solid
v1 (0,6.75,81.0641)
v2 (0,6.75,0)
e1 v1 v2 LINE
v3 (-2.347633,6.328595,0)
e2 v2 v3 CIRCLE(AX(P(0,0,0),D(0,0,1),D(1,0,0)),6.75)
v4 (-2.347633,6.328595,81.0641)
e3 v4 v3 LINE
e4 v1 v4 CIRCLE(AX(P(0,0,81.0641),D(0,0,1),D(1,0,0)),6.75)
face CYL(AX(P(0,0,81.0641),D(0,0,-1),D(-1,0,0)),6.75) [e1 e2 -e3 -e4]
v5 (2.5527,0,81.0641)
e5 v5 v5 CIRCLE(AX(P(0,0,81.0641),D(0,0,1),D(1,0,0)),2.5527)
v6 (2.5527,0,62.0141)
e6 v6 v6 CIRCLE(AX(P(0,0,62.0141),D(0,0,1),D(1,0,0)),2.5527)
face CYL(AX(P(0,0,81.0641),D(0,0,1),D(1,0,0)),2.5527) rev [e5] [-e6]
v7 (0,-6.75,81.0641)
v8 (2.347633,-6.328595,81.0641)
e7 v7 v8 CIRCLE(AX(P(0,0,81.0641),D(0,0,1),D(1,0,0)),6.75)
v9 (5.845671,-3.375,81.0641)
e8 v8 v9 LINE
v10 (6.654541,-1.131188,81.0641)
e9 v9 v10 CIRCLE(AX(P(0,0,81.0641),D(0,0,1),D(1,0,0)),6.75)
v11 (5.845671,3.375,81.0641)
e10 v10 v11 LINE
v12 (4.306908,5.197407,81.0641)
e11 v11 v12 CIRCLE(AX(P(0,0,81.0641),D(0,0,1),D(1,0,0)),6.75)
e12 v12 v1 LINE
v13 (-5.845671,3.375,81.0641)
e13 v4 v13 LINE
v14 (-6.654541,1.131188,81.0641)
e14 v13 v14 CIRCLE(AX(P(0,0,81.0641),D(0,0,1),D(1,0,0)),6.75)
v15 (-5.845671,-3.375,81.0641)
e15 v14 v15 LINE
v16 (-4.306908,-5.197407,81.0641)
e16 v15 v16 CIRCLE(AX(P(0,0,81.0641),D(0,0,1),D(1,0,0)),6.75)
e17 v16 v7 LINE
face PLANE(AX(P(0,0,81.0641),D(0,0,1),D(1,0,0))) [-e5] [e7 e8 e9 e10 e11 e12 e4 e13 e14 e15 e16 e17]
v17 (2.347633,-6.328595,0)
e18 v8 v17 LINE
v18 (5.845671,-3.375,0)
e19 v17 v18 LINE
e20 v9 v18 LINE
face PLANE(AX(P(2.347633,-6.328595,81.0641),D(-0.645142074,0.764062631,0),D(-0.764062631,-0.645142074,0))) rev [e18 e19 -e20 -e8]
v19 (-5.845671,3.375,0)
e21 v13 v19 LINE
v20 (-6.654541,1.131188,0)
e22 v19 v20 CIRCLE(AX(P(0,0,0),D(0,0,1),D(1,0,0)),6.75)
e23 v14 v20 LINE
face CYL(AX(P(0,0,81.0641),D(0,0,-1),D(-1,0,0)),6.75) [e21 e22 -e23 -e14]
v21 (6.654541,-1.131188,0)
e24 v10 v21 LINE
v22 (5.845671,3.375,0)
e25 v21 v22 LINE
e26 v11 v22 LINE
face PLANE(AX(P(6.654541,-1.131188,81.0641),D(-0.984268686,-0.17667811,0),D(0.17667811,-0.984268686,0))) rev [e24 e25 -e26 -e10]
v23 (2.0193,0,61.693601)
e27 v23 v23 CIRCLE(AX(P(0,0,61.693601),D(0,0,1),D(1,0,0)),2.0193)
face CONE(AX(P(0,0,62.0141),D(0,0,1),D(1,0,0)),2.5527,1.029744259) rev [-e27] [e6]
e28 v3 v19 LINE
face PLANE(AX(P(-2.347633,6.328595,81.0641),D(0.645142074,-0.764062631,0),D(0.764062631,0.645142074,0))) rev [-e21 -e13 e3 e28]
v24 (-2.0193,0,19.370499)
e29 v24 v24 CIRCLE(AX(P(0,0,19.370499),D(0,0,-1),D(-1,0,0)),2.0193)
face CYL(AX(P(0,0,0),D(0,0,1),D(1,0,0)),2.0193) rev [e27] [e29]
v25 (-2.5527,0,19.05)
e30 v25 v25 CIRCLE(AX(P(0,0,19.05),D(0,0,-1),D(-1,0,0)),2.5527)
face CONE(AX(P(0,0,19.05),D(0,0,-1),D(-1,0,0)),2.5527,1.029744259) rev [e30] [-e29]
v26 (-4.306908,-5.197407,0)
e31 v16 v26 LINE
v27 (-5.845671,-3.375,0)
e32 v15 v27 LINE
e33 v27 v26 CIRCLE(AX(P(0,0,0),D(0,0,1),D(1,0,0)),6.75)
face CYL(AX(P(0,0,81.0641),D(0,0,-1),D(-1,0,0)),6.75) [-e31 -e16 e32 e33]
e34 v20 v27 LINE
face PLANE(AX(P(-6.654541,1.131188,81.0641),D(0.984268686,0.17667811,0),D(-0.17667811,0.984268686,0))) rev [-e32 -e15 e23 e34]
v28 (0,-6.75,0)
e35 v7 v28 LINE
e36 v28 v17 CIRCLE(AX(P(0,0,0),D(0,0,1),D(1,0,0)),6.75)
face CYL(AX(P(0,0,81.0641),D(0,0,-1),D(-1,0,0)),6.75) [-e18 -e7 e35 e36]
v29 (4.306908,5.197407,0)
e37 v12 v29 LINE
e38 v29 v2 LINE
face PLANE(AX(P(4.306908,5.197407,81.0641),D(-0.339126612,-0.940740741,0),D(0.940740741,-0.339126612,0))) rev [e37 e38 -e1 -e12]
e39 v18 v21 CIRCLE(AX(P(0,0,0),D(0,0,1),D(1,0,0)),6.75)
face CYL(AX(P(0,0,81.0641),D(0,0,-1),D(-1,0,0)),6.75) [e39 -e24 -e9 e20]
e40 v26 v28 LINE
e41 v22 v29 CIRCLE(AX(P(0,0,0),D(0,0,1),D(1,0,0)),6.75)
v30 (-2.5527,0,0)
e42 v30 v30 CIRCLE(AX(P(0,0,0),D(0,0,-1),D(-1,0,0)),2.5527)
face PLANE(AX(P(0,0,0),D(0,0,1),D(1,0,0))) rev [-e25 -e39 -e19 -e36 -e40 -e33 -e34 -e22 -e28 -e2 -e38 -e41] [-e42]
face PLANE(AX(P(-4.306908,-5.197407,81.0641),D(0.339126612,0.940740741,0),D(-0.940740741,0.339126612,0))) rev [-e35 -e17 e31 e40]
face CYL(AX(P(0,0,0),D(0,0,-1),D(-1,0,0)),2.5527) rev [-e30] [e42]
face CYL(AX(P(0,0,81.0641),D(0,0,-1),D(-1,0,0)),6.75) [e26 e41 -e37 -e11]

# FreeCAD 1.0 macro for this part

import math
import FreeCAD as App
import Part
import Sketcher
from FreeCAD import Vector
Q = App.Units.Quantity

doc = App.newDocument("Part")
params = doc.addObject("Spreadsheet::Sheet", "Params")
for row, (alias, value) in enumerate([
    ("pad1_length", "3.1915 in"),
    ("sketch2_diameter", "0.159 in"),
    ("sketch3_diameter", "0.201 in"),
    ("hole_diameter", "0.201 in"),
    ("hole_depth", "0.75 in"),
    ("sketch4_diameter", "0.201 in"),
    ("hole2_diameter", "0.201 in"),
    ("hole2_depth", "0.75 in"),
], start=1):
    params.set(f"A{row}", alias)
    params.set(f"B{row}", "=" + value)
    params.setAlias(f"B{row}", alias)

body = doc.addObject("PartDesign::Body", "Body")

sketch1 = doc.addObject("Sketcher::SketchObject", "Sketch")
body.addObject(sketch1)
sketch1.AttachmentSupport = (doc.XY_Plane, [""])
sketch1.MapMode = "FlatFace"
sketch1.addGeometry([
    Part.LineSegment(Vector(-6.7, 1.1, 0), Vector(-5.8, -3.4, 0)),
    Part.ArcOfCircle(Part.Circle(Vector(0, 0, 0), Vector(0, 0, 1), 6.8), math.radians(-150), math.radians(-130)),
    Part.LineSegment(Vector(-4.3, -5.2, 0), Vector(0, -6.8, 0)),
    Part.ArcOfCircle(Part.Circle(Vector(0, 0, 0), Vector(0, 0, 1), 6.8), math.radians(-90), math.radians(-70)),
    Part.LineSegment(Vector(2.3, -6.3, 0), Vector(5.8, -3.4, 0)),
    Part.ArcOfCircle(Part.Circle(Vector(0, 0, 0), Vector(0, 0, 1), 6.8), math.radians(-30), math.radians(-10)),
    Part.LineSegment(Vector(6.7, -1.1, 0), Vector(5.8, 3.4, 0)),
    Part.ArcOfCircle(Part.Circle(Vector(0, 0, 0), Vector(0, 0, 1), 6.8), math.radians(30), math.radians(50)),
    Part.LineSegment(Vector(4.3, 5.2, 0), Vector(0, 6.8, 0)),
    Part.ArcOfCircle(Part.Circle(Vector(0, 0, 0), Vector(0, 0, 1), 6.8), math.radians(90), math.radians(110)),
    Part.LineSegment(Vector(-2.3, 6.3, 0), Vector(-5.8, 3.4, 0)),
    Part.ArcOfCircle(Part.Circle(Vector(0, 0, 0), Vector(0, 0, 1), 6.8), math.radians(150), math.radians(170)),
], False)
sketch1.addConstraint([
    Sketcher.Constraint("Coincident", 0, 2, 1, 1),
    Sketcher.Constraint("Coincident", 1, 2, 2, 1),
    Sketcher.Constraint("Coincident", 2, 2, 3, 1),
    Sketcher.Constraint("Coincident", 3, 2, 4, 1),
    Sketcher.Constraint("Coincident", 4, 2, 5, 1),
    Sketcher.Constraint("Coincident", 5, 2, 6, 1),
    Sketcher.Constraint("Coincident", 6, 2, 7, 1),
    Sketcher.Constraint("Coincident", 7, 2, 8, 1),
    Sketcher.Constraint("Coincident", 8, 2, 9, 1),
    Sketcher.Constraint("Coincident", 9, 2, 10, 1),
    Sketcher.Constraint("Coincident", 10, 2, 11, 1),
    Sketcher.Constraint("Coincident", 11, 2, 0, 1),
    Sketcher.Constraint("Coincident", 1, 3, -1, 1),
    Sketcher.Constraint("Coincident", 3, 3, -1, 1),
    Sketcher.Constraint("Coincident", 5, 3, -1, 1),
    Sketcher.Constraint("Coincident", 7, 3, -1, 1),
    Sketcher.Constraint("Coincident", 9, 3, -1, 1),
    Sketcher.Constraint("Coincident", 11, 3, -1, 1),
    Sketcher.Constraint("Equal", 1, 3),
    Sketcher.Constraint("Equal", 3, 5),
    Sketcher.Constraint("Equal", 5, 7),
    Sketcher.Constraint("Equal", 7, 9),
    Sketcher.Constraint("Equal", 9, 11),
    Sketcher.Constraint("PointOnObject", 2, 2, -2),
    Sketcher.Constraint("PointOnObject", 8, 2, -2),
    Sketcher.Constraint("Parallel", 0, 6),
    Sketcher.Constraint("Parallel", 2, 8),
    Sketcher.Constraint("Parallel", 4, 10),
    Sketcher.Constraint("Horizontal", 0, 2, 4, 2),
    Sketcher.Constraint("Horizontal", 6, 2, 10, 2),
    Sketcher.Constraint("Vertical", 4, 2, 6, 2),
    Sketcher.Constraint("Equal", 0, 2),
    Sketcher.Constraint("Equal", 2, 4),
    Sketcher.Constraint("Radius", 1, 6.75),
    Sketcher.Constraint("DistanceY", 0, 2, -1, 1, 3.375),
    Sketcher.Constraint("Distance", 0, 4.578209),
])
pad1 = doc.addObject("PartDesign::Pad", "Pad")
body.addObject(pad1)
pad1.Profile = sketch1
pad1.setExpression("Length", "Params.pad1_length")

sketch2 = doc.addObject("Sketcher::SketchObject", "Sketch001")
body.addObject(sketch2)
sketch2.AttachmentSupport = (doc.XY_Plane, [""])
sketch2.MapMode = "FlatFace"
sketch2.AttachmentOffset = App.Placement(Vector(0, 0, 3.1915 * 25.4), App.Rotation())
sketch2.addGeometry(Part.Circle(Vector(0, 0, 0), Vector(0, 0, 1), 2), False)
sketch2.addConstraint([
    Sketcher.Constraint("Coincident", 0, 3, -1, 1),
    Sketcher.Constraint("Diameter", 0, Q("0.159 in")),
])
sketch2.setExpression("Constraints[1]", "Params.sketch2_diameter")
pocket1 = doc.addObject("PartDesign::Pocket", "Pocket")
body.addObject(pocket1)
pocket1.Profile = sketch2
pocket1.Type = "ThroughAll"

sketch3 = doc.addObject("Sketcher::SketchObject", "Sketch002")
body.addObject(sketch3)
sketch3.AttachmentSupport = (doc.XY_Plane, [""])
sketch3.MapMode = "FlatFace"
sketch3.AttachmentOffset = App.Placement(Vector(0, 0, 3.1915 * 25.4), App.Rotation())
sketch3.addGeometry(Part.Circle(Vector(0, 0, 0), Vector(0, 0, 1), 2.6), False)
sketch3.addConstraint([
    Sketcher.Constraint("Coincident", 0, 3, -1, 1),
    Sketcher.Constraint("Diameter", 0, Q("0.201 in")),
])
sketch3.setExpression("Constraints[1]", "Params.sketch3_diameter")
doc.recompute()
hole = doc.addObject("PartDesign::Hole", "Hole")
body.addObject(hole)
hole.Profile = sketch3
hole.ThreadType = "None"
hole.setExpression("Diameter", "Params.hole_diameter")
hole.DepthType = "Dimension"
hole.setExpression("Depth", "Params.hole_depth")
hole.DrillPoint = "Angled"
hole.DrillPointAngle = 118

sketch4 = doc.addObject("Sketcher::SketchObject", "Sketch003")
body.addObject(sketch4)
sketch4.AttachmentSupport = (doc.XY_Plane, [""])
sketch4.MapMode = "FlatFace"
sketch4.addGeometry(Part.Circle(Vector(0, 0, 0), Vector(0, 0, 1), 2.6), False)
sketch4.addConstraint([
    Sketcher.Constraint("Coincident", 0, 3, -1, 1),
    Sketcher.Constraint("Diameter", 0, Q("0.201 in")),
])
sketch4.setExpression("Constraints[1]", "Params.sketch4_diameter")
doc.recompute()
hole2 = doc.addObject("PartDesign::Hole", "Hole001")
body.addObject(hole2)
hole2.Profile = sketch4
hole2.ThreadType = "None"
hole2.setExpression("Diameter", "Params.hole2_diameter")
hole2.DepthType = "Dimension"
hole2.setExpression("Depth", "Params.hole2_depth")
hole2.DrillPoint = "Angled"
hole2.DrillPointAngle = 118
hole2.Reversed = True

doc.recompute()
